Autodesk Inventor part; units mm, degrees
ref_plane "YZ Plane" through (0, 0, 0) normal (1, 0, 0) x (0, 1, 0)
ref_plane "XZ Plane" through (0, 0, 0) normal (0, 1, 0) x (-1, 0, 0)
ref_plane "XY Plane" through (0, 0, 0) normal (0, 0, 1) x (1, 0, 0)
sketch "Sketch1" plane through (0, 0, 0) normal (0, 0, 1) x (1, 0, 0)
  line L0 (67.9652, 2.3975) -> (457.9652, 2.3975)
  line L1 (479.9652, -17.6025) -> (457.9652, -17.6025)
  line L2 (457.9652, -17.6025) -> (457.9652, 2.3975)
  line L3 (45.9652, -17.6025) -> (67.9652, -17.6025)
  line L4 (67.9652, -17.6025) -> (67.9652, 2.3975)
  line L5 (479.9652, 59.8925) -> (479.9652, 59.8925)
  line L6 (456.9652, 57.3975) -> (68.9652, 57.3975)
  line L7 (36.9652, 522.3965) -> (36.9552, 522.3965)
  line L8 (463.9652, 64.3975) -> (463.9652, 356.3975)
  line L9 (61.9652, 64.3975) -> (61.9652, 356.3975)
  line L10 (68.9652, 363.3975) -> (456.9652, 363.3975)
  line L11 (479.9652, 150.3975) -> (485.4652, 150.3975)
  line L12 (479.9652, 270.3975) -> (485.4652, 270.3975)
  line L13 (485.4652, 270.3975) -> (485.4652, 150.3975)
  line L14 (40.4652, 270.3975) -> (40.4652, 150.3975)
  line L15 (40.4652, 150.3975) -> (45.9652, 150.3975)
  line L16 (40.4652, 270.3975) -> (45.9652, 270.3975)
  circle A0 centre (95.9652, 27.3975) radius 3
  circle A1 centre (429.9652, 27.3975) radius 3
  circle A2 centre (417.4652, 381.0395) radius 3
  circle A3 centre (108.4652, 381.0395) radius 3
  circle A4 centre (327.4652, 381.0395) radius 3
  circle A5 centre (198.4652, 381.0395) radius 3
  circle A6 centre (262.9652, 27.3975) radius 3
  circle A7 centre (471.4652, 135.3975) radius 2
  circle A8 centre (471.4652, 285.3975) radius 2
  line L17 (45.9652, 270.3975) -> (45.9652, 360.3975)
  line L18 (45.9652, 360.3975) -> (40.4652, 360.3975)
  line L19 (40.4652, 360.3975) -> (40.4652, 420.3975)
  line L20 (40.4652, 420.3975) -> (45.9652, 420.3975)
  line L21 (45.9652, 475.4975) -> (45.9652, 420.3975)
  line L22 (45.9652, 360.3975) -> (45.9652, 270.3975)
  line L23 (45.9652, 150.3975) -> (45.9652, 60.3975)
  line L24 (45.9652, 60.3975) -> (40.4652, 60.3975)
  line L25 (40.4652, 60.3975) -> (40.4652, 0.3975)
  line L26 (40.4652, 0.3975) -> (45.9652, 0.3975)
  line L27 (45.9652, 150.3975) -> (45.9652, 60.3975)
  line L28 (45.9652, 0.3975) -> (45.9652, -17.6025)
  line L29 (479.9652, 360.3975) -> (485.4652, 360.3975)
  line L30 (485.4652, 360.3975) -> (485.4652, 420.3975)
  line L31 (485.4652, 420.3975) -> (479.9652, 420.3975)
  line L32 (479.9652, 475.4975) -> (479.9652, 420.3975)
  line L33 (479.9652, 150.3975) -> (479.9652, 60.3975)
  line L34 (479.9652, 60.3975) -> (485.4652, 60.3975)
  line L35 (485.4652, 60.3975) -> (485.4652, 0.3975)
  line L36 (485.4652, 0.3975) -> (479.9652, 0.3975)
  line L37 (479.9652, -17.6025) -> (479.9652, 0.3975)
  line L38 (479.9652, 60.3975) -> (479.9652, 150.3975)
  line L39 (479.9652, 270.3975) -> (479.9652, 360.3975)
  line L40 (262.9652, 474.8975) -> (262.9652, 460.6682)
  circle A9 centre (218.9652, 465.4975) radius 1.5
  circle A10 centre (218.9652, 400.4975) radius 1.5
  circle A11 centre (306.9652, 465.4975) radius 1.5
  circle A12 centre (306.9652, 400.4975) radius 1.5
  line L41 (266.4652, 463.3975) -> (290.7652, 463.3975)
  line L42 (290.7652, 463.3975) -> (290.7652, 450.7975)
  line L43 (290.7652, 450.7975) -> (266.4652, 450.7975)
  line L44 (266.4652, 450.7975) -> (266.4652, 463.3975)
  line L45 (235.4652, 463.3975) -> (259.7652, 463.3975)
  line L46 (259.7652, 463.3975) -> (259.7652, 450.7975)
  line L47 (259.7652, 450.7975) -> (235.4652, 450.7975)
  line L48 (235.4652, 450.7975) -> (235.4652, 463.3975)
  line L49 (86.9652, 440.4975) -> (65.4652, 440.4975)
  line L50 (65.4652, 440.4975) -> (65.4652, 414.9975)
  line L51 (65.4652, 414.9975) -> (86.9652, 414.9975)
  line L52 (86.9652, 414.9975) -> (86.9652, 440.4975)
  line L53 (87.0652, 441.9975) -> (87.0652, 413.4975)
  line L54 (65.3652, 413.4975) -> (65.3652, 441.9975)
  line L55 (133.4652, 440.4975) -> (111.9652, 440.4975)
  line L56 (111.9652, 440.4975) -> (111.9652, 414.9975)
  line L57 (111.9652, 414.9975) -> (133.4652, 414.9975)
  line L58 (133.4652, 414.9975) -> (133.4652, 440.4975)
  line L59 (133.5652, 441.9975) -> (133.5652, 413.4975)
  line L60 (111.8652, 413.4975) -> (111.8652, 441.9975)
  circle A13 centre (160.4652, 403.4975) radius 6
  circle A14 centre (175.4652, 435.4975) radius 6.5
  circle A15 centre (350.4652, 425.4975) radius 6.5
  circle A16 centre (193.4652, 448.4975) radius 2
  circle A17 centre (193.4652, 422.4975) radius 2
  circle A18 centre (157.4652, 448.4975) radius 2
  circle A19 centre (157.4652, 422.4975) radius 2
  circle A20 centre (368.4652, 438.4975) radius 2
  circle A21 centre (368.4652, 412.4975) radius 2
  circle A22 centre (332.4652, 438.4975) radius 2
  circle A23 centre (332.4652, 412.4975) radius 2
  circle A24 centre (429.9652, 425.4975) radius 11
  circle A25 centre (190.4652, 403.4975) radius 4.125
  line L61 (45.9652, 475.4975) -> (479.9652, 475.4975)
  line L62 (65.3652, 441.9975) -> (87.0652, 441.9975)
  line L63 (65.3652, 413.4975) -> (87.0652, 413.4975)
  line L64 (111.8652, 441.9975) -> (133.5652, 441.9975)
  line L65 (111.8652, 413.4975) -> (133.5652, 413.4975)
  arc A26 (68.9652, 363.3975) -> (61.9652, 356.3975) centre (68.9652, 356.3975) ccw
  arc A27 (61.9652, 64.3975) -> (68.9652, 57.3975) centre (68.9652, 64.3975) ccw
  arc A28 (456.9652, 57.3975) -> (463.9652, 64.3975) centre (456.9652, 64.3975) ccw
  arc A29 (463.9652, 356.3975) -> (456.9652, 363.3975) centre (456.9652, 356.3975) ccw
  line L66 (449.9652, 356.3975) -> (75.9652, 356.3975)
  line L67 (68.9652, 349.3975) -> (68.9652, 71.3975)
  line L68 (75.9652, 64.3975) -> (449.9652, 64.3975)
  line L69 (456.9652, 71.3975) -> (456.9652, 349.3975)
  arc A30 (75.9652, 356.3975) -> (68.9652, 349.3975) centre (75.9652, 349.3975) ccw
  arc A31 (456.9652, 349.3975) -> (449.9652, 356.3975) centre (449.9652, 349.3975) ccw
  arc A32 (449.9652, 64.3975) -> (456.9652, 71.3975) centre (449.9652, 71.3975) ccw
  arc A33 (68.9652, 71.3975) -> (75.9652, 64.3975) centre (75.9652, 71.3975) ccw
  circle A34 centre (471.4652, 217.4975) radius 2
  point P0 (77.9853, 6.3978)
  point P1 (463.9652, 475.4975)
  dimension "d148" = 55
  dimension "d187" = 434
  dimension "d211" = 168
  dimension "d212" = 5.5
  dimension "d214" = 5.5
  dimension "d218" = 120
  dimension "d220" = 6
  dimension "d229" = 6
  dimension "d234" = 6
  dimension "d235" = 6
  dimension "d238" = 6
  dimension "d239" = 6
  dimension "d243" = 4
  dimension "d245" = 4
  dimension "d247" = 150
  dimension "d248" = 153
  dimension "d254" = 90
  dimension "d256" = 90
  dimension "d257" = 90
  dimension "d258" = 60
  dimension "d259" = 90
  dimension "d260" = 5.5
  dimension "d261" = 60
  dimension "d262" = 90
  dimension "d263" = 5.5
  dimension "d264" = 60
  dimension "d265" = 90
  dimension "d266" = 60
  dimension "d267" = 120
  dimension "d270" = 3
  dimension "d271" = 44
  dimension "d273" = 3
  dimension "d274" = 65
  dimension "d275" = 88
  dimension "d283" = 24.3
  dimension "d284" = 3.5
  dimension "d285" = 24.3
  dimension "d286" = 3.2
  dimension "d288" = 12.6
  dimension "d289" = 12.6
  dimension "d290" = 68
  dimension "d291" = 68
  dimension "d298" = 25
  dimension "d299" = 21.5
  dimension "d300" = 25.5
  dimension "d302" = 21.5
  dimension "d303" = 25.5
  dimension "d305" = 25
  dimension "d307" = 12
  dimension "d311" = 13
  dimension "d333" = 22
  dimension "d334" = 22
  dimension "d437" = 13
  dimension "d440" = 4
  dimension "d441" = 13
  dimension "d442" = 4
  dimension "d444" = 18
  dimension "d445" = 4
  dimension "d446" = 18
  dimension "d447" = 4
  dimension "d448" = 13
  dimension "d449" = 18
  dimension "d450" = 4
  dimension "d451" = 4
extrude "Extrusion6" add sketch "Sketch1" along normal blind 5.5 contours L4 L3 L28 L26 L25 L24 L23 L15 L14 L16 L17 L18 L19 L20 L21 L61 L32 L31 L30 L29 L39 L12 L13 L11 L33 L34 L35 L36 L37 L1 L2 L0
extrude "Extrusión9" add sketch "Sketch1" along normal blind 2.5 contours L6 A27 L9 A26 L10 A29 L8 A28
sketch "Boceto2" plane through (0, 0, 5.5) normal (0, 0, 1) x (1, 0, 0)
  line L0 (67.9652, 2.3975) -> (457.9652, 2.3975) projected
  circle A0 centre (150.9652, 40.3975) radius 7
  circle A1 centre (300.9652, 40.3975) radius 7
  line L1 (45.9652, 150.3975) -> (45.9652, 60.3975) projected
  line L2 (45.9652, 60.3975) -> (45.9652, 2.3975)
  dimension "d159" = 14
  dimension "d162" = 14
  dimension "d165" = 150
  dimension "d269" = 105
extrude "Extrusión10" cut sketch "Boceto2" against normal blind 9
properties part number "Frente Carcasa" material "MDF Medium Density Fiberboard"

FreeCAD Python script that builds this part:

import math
import FreeCAD as App
import Part
import Sketcher
from FreeCAD import Vector
Q = App.Units.Quantity


def add_polygon(sketch, points):
    """Adds a closed chain of lines whose ends are joined by coincident constraints."""
    first, n = sketch.GeometryCount, len(points)
    for a, b in zip(points, points[1:] + points[:1]):
        sketch.addGeometry(Part.LineSegment(App.Vector(*a, 0), App.Vector(*b, 0)), False)
    for i in range(n):
        sketch.addConstraint(Sketcher.Constraint("Coincident", first + i, 2, first + (i + 1) % n, 1))

doc = App.newDocument("Part")
body = doc.addObject("PartDesign::Body", "Body")

sketch1 = body.newObject("Sketcher::SketchObject", "Sketch")
sketch1.AttachmentSupport = (doc.getObject("XY_Plane"), [""])
sketch1.MapMode = "FlatFace"
add_polygon(sketch1, [(68, -17.6), (68, 2.4), (458, 2.4), (458, -17.6), (480, -17.6), (480, 0.4), (485.5, 0.4), (485.5, 60.4), (480, 60.4), (480, 150.4), (485.5, 150.4), (485.5, 270.4), (480, 270.4), (480, 360.4), (485.5, 360.4), (485.5, 420.4), (480, 420.4), (480, 475.5), (46, 475.5), (46, 420.4), (40.5, 420.4), (40.5, 360.4), (46, 360.4), (46, 270.4), (40.5, 270.4), (40.5, 150.4), (46, 150.4), (46, 60.4), (40.5, 60.4), (40.5, 0.4), (46, 0.4), (46, -17.6)])
sketch1.addGeometry(Part.Circle(Vector(96, 27.4, 0), Vector(0, 0, 1), 3), False)
sketch1.addGeometry(Part.Circle(Vector(263, 27.4, 0), Vector(0, 0, 1), 3), False)
sketch1.addGeometry(Part.Circle(Vector(430, 27.4, 0), Vector(0, 0, 1), 3), False)
sketch1.addGeometry(Part.ArcOfCircle(Part.Circle(Vector(457, 64.4, 0), Vector(0, 0, 1), 7), math.radians(-90), math.radians(0)), False)
sketch1.addGeometry(Part.LineSegment(Vector(457, 57.4, 0), Vector(69, 57.4, 0)), False)
sketch1.addGeometry(Part.ArcOfCircle(Part.Circle(Vector(69, 64.4, 0), Vector(0, 0, 1), 7), math.radians(180), math.radians(270)), False)
sketch1.addGeometry(Part.LineSegment(Vector(62, 64.4, 0), Vector(62, 356.4, 0)), False)
sketch1.addGeometry(Part.ArcOfCircle(Part.Circle(Vector(69, 356.4, 0), Vector(0, 0, 1), 7), math.radians(90), math.radians(180)), False)
sketch1.addGeometry(Part.LineSegment(Vector(69, 363.4, 0), Vector(457, 363.4, 0)), False)
sketch1.addGeometry(Part.ArcOfCircle(Part.Circle(Vector(457, 356.4, 0), Vector(0, 0, 1), 7), math.radians(0), math.radians(90)), False)
sketch1.addGeometry(Part.LineSegment(Vector(464, 356.4, 0), Vector(464, 64.4, 0)), False)
sketch1.addGeometry(Part.Circle(Vector(471.5, 135.4, 0), Vector(0, 0, 1), 2), False)
sketch1.addGeometry(Part.Circle(Vector(471.5, 217.5, 0), Vector(0, 0, 1), 2), False)
sketch1.addGeometry(Part.Circle(Vector(108.5, 381, 0), Vector(0, 0, 1), 3), False)
add_polygon(sketch1, [(65.4, 442), (87.1, 442), (87.1, 413.5), (65.4, 413.5)])
add_polygon(sketch1, [(111.9, 442), (133.6, 442), (133.6, 413.5), (111.9, 413.5)])
sketch1.addGeometry(Part.Circle(Vector(198.5, 381, 0), Vector(0, 0, 1), 3), False)
sketch1.addGeometry(Part.Circle(Vector(160.5, 403.5, 0), Vector(0, 0, 1), 6), False)
sketch1.addGeometry(Part.Circle(Vector(190.5, 403.5, 0), Vector(0, 0, 1), 4.1), False)
sketch1.addGeometry(Part.Circle(Vector(219, 400.5, 0), Vector(0, 0, 1), 1.5), False)
sketch1.addGeometry(Part.Circle(Vector(157.5, 422.5, 0), Vector(0, 0, 1), 2), False)
sketch1.addGeometry(Part.Circle(Vector(175.5, 435.5, 0), Vector(0, 0, 1), 6.5), False)
sketch1.addGeometry(Part.Circle(Vector(193.5, 422.5, 0), Vector(0, 0, 1), 2), False)
sketch1.addGeometry(Part.Circle(Vector(157.5, 448.5, 0), Vector(0, 0, 1), 2), False)
sketch1.addGeometry(Part.Circle(Vector(193.5, 448.5, 0), Vector(0, 0, 1), 2), False)
sketch1.addGeometry(Part.Circle(Vector(219, 465.5, 0), Vector(0, 0, 1), 1.5), False)
add_polygon(sketch1, [(235.5, 450.8), (235.5, 463.4), (259.8, 463.4), (259.8, 450.8)])
sketch1.addGeometry(Part.Circle(Vector(471.5, 285.4, 0), Vector(0, 0, 1), 2), False)
sketch1.addGeometry(Part.Circle(Vector(307, 400.5, 0), Vector(0, 0, 1), 1.5), False)
sketch1.addGeometry(Part.Circle(Vector(327.5, 381, 0), Vector(0, 0, 1), 3), False)
sketch1.addGeometry(Part.Circle(Vector(332.5, 412.5, 0), Vector(0, 0, 1), 2), False)
sketch1.addGeometry(Part.Circle(Vector(368.5, 412.5, 0), Vector(0, 0, 1), 2), False)
add_polygon(sketch1, [(266.5, 450.8), (266.5, 463.4), (290.8, 463.4), (290.8, 450.8)])
sketch1.addGeometry(Part.Circle(Vector(307, 465.5, 0), Vector(0, 0, 1), 1.5), False)
sketch1.addGeometry(Part.Circle(Vector(332.5, 438.5, 0), Vector(0, 0, 1), 2), False)
sketch1.addGeometry(Part.Circle(Vector(350.5, 425.5, 0), Vector(0, 0, 1), 6.5), False)
sketch1.addGeometry(Part.Circle(Vector(368.5, 438.5, 0), Vector(0, 0, 1), 2), False)
sketch1.addGeometry(Part.Circle(Vector(417.5, 381, 0), Vector(0, 0, 1), 3), False)
sketch1.addGeometry(Part.Circle(Vector(430, 425.5, 0), Vector(0, 0, 1), 11), False)
sketch1.addConstraint([
    Sketcher.Constraint("Tangent", 35, 1, 36, 1),
    Sketcher.Constraint("Tangent", 36, 2, 37, 2),
    Sketcher.Constraint("Tangent", 37, 1, 38, 1),
    Sketcher.Constraint("Tangent", 38, 2, 39, 2),
    Sketcher.Constraint("Tangent", 39, 1, 40, 1),
    Sketcher.Constraint("Tangent", 40, 2, 41, 2),
    Sketcher.Constraint("Tangent", 41, 1, 42, 1),
    Sketcher.Constraint("Tangent", 42, 2, 35, 2),
    Sketcher.Constraint("Vertical", 0),
    Sketcher.Constraint("Horizontal", 1),
    Sketcher.Constraint("Vertical", 2),
    Sketcher.Constraint("Horizontal", 3),
    Sketcher.Constraint("Vertical", 4),
    Sketcher.Constraint("Horizontal", 5),
    Sketcher.Constraint("Vertical", 6),
    Sketcher.Constraint("Horizontal", 7),
    Sketcher.Constraint("Vertical", 8),
    Sketcher.Constraint("Horizontal", 9),
    Sketcher.Constraint("Vertical", 10),
    Sketcher.Constraint("Horizontal", 11),
    Sketcher.Constraint("Vertical", 12),
    Sketcher.Constraint("Horizontal", 13),
    Sketcher.Constraint("Vertical", 14),
    Sketcher.Constraint("Horizontal", 15),
    Sketcher.Constraint("Vertical", 16),
    Sketcher.Constraint("Horizontal", 17),
    Sketcher.Constraint("Vertical", 18),
    Sketcher.Constraint("Horizontal", 19),
    Sketcher.Constraint("Vertical", 20),
    Sketcher.Constraint("Horizontal", 21),
    Sketcher.Constraint("Vertical", 22),
    Sketcher.Constraint("Horizontal", 23),
    Sketcher.Constraint("Vertical", 24),
    Sketcher.Constraint("Horizontal", 25),
    Sketcher.Constraint("Vertical", 26),
    Sketcher.Constraint("Horizontal", 27),
    Sketcher.Constraint("Vertical", 28),
    Sketcher.Constraint("Horizontal", 29),
    Sketcher.Constraint("Vertical", 30),
    Sketcher.Constraint("Horizontal", 31),
    Sketcher.Constraint("Horizontal", 36),
    Sketcher.Constraint("Vertical", 38),
    Sketcher.Constraint("Horizontal", 40),
    Sketcher.Constraint("Vertical", 42),
    Sketcher.Constraint("Horizontal", 46),
    Sketcher.Constraint("Vertical", 47),
    Sketcher.Constraint("Horizontal", 48),
    Sketcher.Constraint("Vertical", 49),
    Sketcher.Constraint("Horizontal", 50),
    Sketcher.Constraint("Vertical", 51),
    Sketcher.Constraint("Horizontal", 52),
    Sketcher.Constraint("Vertical", 53),
    Sketcher.Constraint("Vertical", 64),
    Sketcher.Constraint("Horizontal", 65),
    Sketcher.Constraint("Vertical", 66),
    Sketcher.Constraint("Horizontal", 67),
    Sketcher.Constraint("Vertical", 73),
    Sketcher.Constraint("Horizontal", 74),
    Sketcher.Constraint("Vertical", 75),
    Sketcher.Constraint("Horizontal", 76),
    Sketcher.Constraint("Equal", 32, 33),
    Sketcher.Constraint("Equal", 33, 34),
    Sketcher.Constraint("Equal", 35, 37),
    Sketcher.Constraint("Equal", 37, 39),
    Sketcher.Constraint("Equal", 39, 41),
    Sketcher.Constraint("Equal", 43, 44),
    Sketcher.Constraint("Equal", 34, 45),
    Sketcher.Constraint("Equal", 45, 54),
    Sketcher.Constraint("Equal", 44, 58),
    Sketcher.Constraint("Equal", 58, 60),
    Sketcher.Constraint("Equal", 60, 61),
    Sketcher.Constraint("Equal", 61, 62),
    Sketcher.Constraint("Equal", 57, 63),
    Sketcher.Constraint("Equal", 62, 68),
    Sketcher.Constraint("Equal", 63, 69),
    Sketcher.Constraint("Equal", 54, 70),
    Sketcher.Constraint("Equal", 68, 71),
    Sketcher.Constraint("Equal", 71, 72),
    Sketcher.Constraint("Equal", 69, 77),
    Sketcher.Constraint("Equal", 72, 78),
    Sketcher.Constraint("Equal", 59, 79),
    Sketcher.Constraint("Equal", 78, 80),
    Sketcher.Constraint("Equal", 70, 81),
    Sketcher.Constraint("Horizontal", 32, 3, 33, 3),
    Sketcher.Constraint("Horizontal", 33, 3, 34, 3),
    Sketcher.Constraint("Horizontal", 45, 3, 54, 3),
    Sketcher.Constraint("Horizontal", 55, 3, 56, 3),
    Sketcher.Constraint("Horizontal", 58, 3, 60, 3),
    Sketcher.Constraint("Horizontal", 61, 3, 62, 3),
    Sketcher.Constraint("Horizontal", 57, 3, 69, 3),
    Sketcher.Constraint("Horizontal", 54, 3, 70, 3),
    Sketcher.Constraint("Horizontal", 71, 3, 72, 3),
    Sketcher.Constraint("Horizontal", 63, 3, 77, 3),
    Sketcher.Constraint("Horizontal", 78, 3, 80, 3),
    Sketcher.Constraint("Horizontal", 70, 3, 81, 3),
    Sketcher.Constraint("Horizontal", 79, 3, 82, 3),
    Sketcher.Constraint("Horizontal", 15, 2, 18, 2),
    Sketcher.Constraint("Horizontal", 13, 2, 20, 2),
    Sketcher.Constraint("Horizontal", 11, 2, 22, 2),
    Sketcher.Constraint("Horizontal", 9, 2, 24, 2),
    Sketcher.Constraint("Horizontal", 7, 2, 26, 2),
    Sketcher.Constraint("Horizontal", 5, 2, 28, 2),
    Sketcher.Constraint("Horizontal", 3, 2, 30, 2),
    Sketcher.Constraint("Horizontal", 49, 2, 50, 2),
    Sketcher.Constraint("Horizontal", 48, 2, 51, 2),
    Sketcher.Constraint("Horizontal", 65, 2, 73, 2),
    Sketcher.Constraint("Horizontal", 67, 2, 75, 2),
    Sketcher.Constraint("Vertical", 43, 3, 44, 3),
    Sketcher.Constraint("Vertical", 58, 3, 61, 3),
    Sketcher.Constraint("Vertical", 60, 3, 62, 3),
    Sketcher.Constraint("Vertical", 57, 3, 63, 3),
    Sketcher.Constraint("Vertical", 44, 3, 68, 3),
    Sketcher.Constraint("Vertical", 69, 3, 77, 3),
    Sketcher.Constraint("Vertical", 71, 3, 78, 3),
    Sketcher.Constraint("Vertical", 72, 3, 80, 3),
    Sketcher.Constraint("Vertical", 34, 3, 82, 3),
    Sketcher.Constraint("Vertical", 4, 2, 7, 2),
    Sketcher.Constraint("Vertical", 6, 2, 9, 2),
    Sketcher.Constraint("Vertical", 8, 2, 11, 2),
    Sketcher.Constraint("Vertical", 10, 2, 13, 2),
    Sketcher.Constraint("Vertical", 12, 2, 15, 2),
    Sketcher.Constraint("Vertical", 18, 2, 21, 2),
    Sketcher.Constraint("Vertical", 20, 2, 23, 2),
    Sketcher.Constraint("Vertical", 22, 2, 25, 2),
    Sketcher.Constraint("Vertical", 24, 2, 27, 2),
    Sketcher.Constraint("Vertical", 26, 2, 29, 2),
    Sketcher.Constraint("Equal", 15, 19),
    Sketcher.Constraint("Equal", 3, 31),
    Sketcher.Constraint("Equal", 48, 50),
    Sketcher.Constraint("Equal", 67, 74),
    Sketcher.Constraint("Equal", 8, 12),
    Sketcher.Constraint("Equal", 6, 14),
    Sketcher.Constraint("Diameter", 32, Q("6 mm")),
    Sketcher.Constraint("Diameter", 43, Q("4 mm")),
    Sketcher.Constraint("Diameter", 55, Q("12 mm")),
    Sketcher.Constraint("Diameter", 57, Q("3 mm")),
    Sketcher.Constraint("Diameter", 59, Q("13 mm")),
    Sketcher.Constraint("Diameter", 82, Q("22 mm")),
    Sketcher.Constraint("DistanceX", 3, 1, 3, 2, Q("22 mm")),
    Sketcher.Constraint("DistanceX", 17, 2, 17, 1, Q("434 mm")),
    Sketcher.Constraint("DistanceY", 4, 1, 4, 2, Q("18 mm")),
    Sketcher.Constraint("DistanceY", 6, 1, 6, 2, Q("60 mm")),
    Sketcher.Constraint("DistanceY", 8, 1, 8, 2, Q("90 mm")),
    Sketcher.Constraint("DistanceY", 10, 1, 10, 2, Q("120 mm")),
    Sketcher.Constraint("DistanceX", 5, 1, 5, 2, Q("5.5 mm")),
    Sketcher.Constraint("DistanceX", 65, 1, 65, 2, Q("24.3 mm")),
    Sketcher.Constraint("DistanceY", 64, 1, 64, 2, Q("12.6 mm")),
    Sketcher.Constraint("Radius", 35, Q("7 mm")),
    Sketcher.Constraint("Diameter", 56, Q("8.25 mm")),
    Sketcher.Constraint("DistanceX", 36, 2, 36, 1, Q("388 mm")),
    Sketcher.Constraint("DistanceY", 0, 1, 0, 2, Q("20 mm")),
    Sketcher.Constraint("DistanceY", 38, 1, 38, 2, Q("292 mm")),
    Sketcher.Constraint("DistanceX", 46, 1, 46, 2, Q("21.7 mm")),
    Sketcher.Constraint("DistanceY", 16, 1, 16, 2, Q("55.1 mm")),
    Sketcher.Constraint("DistanceY", 47, 2, 47, 1, Q("28.5 mm")),
    Sketcher.Constraint("DistanceX", -1, 1, 32, 3, Q("95.9652 mm")),
    Sketcher.Constraint("DistanceY", -1, 1, 32, 3, Q("27.3975 mm")),
    Sketcher.Constraint("DistanceX", -1, 1, 33, 3, Q("262.9652 mm")),
    Sketcher.Constraint("DistanceX", -1, 1, 34, 3, Q("429.9652 mm")),
    Sketcher.Constraint("DistanceX", -1, 1, 35, 3, Q("456.9652 mm")),
    Sketcher.Constraint("DistanceY", -1, 1, 35, 3, Q("64.3975 mm")),
    Sketcher.Constraint("DistanceX", -1, 1, 43, 3, Q("471.4652 mm")),
    Sketcher.Constraint("DistanceY", -1, 1, 43, 3, Q("135.3975 mm")),
    Sketcher.Constraint("DistanceY", -1, 1, 44, 3, Q("217.4975 mm")),
    Sketcher.Constraint("DistanceX", -1, 1, 45, 3, Q("108.4652 mm")),
    Sketcher.Constraint("DistanceY", -1, 1, 45, 3, Q("381.0395 mm")),
    Sketcher.Constraint("DistanceX", -1, 1, 54, 3, Q("198.4652 mm")),
    Sketcher.Constraint("DistanceX", -1, 1, 55, 3, Q("160.4652 mm")),
    Sketcher.Constraint("DistanceY", -1, 1, 55, 3, Q("403.4975 mm")),
    Sketcher.Constraint("DistanceX", -1, 1, 56, 3, Q("190.4652 mm")),
    Sketcher.Constraint("DistanceX", -1, 1, 57, 3, Q("218.9652 mm")),
    Sketcher.Constraint("DistanceY", -1, 1, 57, 3, Q("400.4975 mm")),
    Sketcher.Constraint("DistanceX", -1, 1, 58, 3, Q("157.4652 mm")),
    Sketcher.Constraint("DistanceY", -1, 1, 58, 3, Q("422.4975 mm")),
    Sketcher.Constraint("DistanceX", -1, 1, 59, 3, Q("175.4652 mm")),
    Sketcher.Constraint("DistanceY", -1, 1, 59, 3, Q("435.4975 mm")),
    Sketcher.Constraint("DistanceX", -1, 1, 60, 3, Q("193.4652 mm")),
    Sketcher.Constraint("DistanceY", -1, 1, 61, 3, Q("448.4975 mm")),
    Sketcher.Constraint("DistanceY", -1, 1, 63, 3, Q("465.4975 mm")),
    Sketcher.Constraint("DistanceY", -1, 1, 68, 3, Q("285.3975 mm")),
    Sketcher.Constraint("DistanceX", -1, 1, 69, 3, Q("306.9652 mm")),
    Sketcher.Constraint("DistanceX", -1, 1, 70, 3, Q("327.4652 mm")),
    Sketcher.Constraint("DistanceX", -1, 1, 71, 3, Q("332.4652 mm")),
    Sketcher.Constraint("DistanceY", -1, 1, 71, 3, Q("412.4975 mm")),
    Sketcher.Constraint("DistanceX", -1, 1, 72, 3, Q("368.4652 mm")),
    Sketcher.Constraint("DistanceY", -1, 1, 78, 3, Q("438.4975 mm")),
    Sketcher.Constraint("DistanceX", -1, 1, 79, 3, Q("350.4652 mm")),
    Sketcher.Constraint("DistanceY", -1, 1, 79, 3, Q("425.4975 mm")),
    Sketcher.Constraint("DistanceX", -1, 1, 81, 3, Q("417.4652 mm")),
    Sketcher.Constraint("DistanceX", -1, 1, 0, 2, Q("67.9652 mm")),
    Sketcher.Constraint("DistanceY", -1, 1, 0, 2, Q("2.3975 mm")),
    Sketcher.Constraint("DistanceX", -1, 1, 46, 2, Q("87.0652 mm")),
    Sketcher.Constraint("DistanceY", -1, 1, 46, 2, Q("441.9975 mm")),
    Sketcher.Constraint("DistanceX", -1, 1, 50, 2, Q("133.5652 mm")),
    Sketcher.Constraint("DistanceX", -1, 1, 64, 2, Q("235.4652 mm")),
    Sketcher.Constraint("DistanceY", -1, 1, 64, 2, Q("463.3975 mm")),
    Sketcher.Constraint("DistanceX", -1, 1, 73, 2, Q("266.4652 mm")),
])
pad1 = body.newObject("PartDesign::Pad", "Pad")
pad1.Profile = sketch1
pad1.Length = 5.5

sketch2 = body.newObject("Sketcher::SketchObject", "Sketch001")
sketch2.AttachmentSupport = (doc.getObject("XY_Plane"), [""])
sketch2.MapMode = "FlatFace"
sketch2.addGeometry([
    Part.LineSegment(Vector(69, 57, 0), Vector(457, 57, 0)),
    Part.ArcOfCircle(Part.Circle(Vector(457, 64, 0), Vector(0, 0, 1), 7), math.radians(-90), math.radians(0)),
    Part.LineSegment(Vector(464, 64, 0), Vector(464, 356, 0)),
    Part.ArcOfCircle(Part.Circle(Vector(457, 356, 0), Vector(0, 0, 1), 7), math.radians(0), math.radians(90)),
    Part.LineSegment(Vector(457, 363, 0), Vector(69, 363, 0)),
    Part.ArcOfCircle(Part.Circle(Vector(69, 356, 0), Vector(0, 0, 1), 7), math.radians(90), math.radians(180)),
    Part.LineSegment(Vector(62, 356, 0), Vector(62, 64, 0)),
    Part.ArcOfCircle(Part.Circle(Vector(69, 64, 0), Vector(0, 0, 1), 7), math.radians(180), math.radians(270)),
    Part.LineSegment(Vector(76, 356, 0), Vector(450, 356, 0)),
    Part.ArcOfCircle(Part.Circle(Vector(450, 349, 0), Vector(0, 0, 1), 7), math.radians(0), math.radians(90)),
    Part.LineSegment(Vector(457, 349, 0), Vector(457, 71, 0)),
    Part.ArcOfCircle(Part.Circle(Vector(450, 71, 0), Vector(0, 0, 1), 7), math.radians(-90), math.radians(0)),
    Part.LineSegment(Vector(450, 64, 0), Vector(76, 64, 0)),
    Part.ArcOfCircle(Part.Circle(Vector(76, 71, 0), Vector(0, 0, 1), 7), math.radians(180), math.radians(270)),
    Part.LineSegment(Vector(69, 71, 0), Vector(69, 349, 0)),
    Part.ArcOfCircle(Part.Circle(Vector(76, 349, 0), Vector(0, 0, 1), 7), math.radians(90), math.radians(180)),
], False)
sketch2.addConstraint([
    Sketcher.Constraint("Tangent", 0, 2, 1, 1),
    Sketcher.Constraint("Tangent", 1, 2, 2, 1),
    Sketcher.Constraint("Tangent", 2, 2, 3, 1),
    Sketcher.Constraint("Tangent", 3, 2, 4, 1),
    Sketcher.Constraint("Tangent", 4, 2, 5, 1),
    Sketcher.Constraint("Tangent", 5, 2, 6, 1),
    Sketcher.Constraint("Tangent", 6, 2, 7, 1),
    Sketcher.Constraint("Tangent", 7, 2, 0, 1),
    Sketcher.Constraint("Tangent", 8, 2, 9, 2),
    Sketcher.Constraint("Tangent", 9, 1, 10, 1),
    Sketcher.Constraint("Tangent", 10, 2, 11, 2),
    Sketcher.Constraint("Tangent", 11, 1, 12, 1),
    Sketcher.Constraint("Tangent", 12, 2, 13, 2),
    Sketcher.Constraint("Tangent", 13, 1, 14, 1),
    Sketcher.Constraint("Tangent", 14, 2, 15, 2),
    Sketcher.Constraint("Tangent", 15, 1, 8, 1),
    Sketcher.Constraint("Horizontal", 0),
    Sketcher.Constraint("Vertical", 2),
    Sketcher.Constraint("Horizontal", 4),
    Sketcher.Constraint("Vertical", 6),
    Sketcher.Constraint("Horizontal", 8),
    Sketcher.Constraint("Vertical", 10),
    Sketcher.Constraint("Horizontal", 12),
    Sketcher.Constraint("Vertical", 14),
    Sketcher.Constraint("Equal", 1, 3),
    Sketcher.Constraint("Equal", 3, 5),
    Sketcher.Constraint("Equal", 5, 7),
    Sketcher.Constraint("Equal", 7, 9),
    Sketcher.Constraint("Equal", 9, 11),
    Sketcher.Constraint("Equal", 11, 13),
    Sketcher.Constraint("Equal", 13, 15),
    Sketcher.Constraint("Horizontal", 5, 2, 8, 2),
    Sketcher.Constraint("Horizontal", 6, 2, 11, 1),
    Sketcher.Constraint("Vertical", 3, 2, 9, 1),
    Sketcher.Constraint("Vertical", 7, 2, 13, 1),
    Sketcher.Constraint("Radius", 1, Q("7 mm")),
    Sketcher.Constraint("DistanceX", 0, 1, 0, 2, Q("388 mm")),
    Sketcher.Constraint("DistanceY", 2, 1, 2, 2, Q("292 mm")),
    Sketcher.Constraint("DistanceX", -1, 1, 1, 3, Q("456.9652 mm")),
    Sketcher.Constraint("DistanceY", -1, 1, 1, 3, Q("64.3975 mm")),
])
pad2 = body.newObject("PartDesign::Pad", "Pad001")
pad2.Profile = sketch2
pad2.Length = 2.5

sketch3 = body.newObject("Sketcher::SketchObject", "Sketch002")
sketch3.AttachmentSupport = (doc.getObject("XY_Plane"), [""])
sketch3.MapMode = "FlatFace"
sketch3.AttachmentOffset = App.Placement(Vector(0, 0, 5.5), App.Rotation())
sketch3.addGeometry([
    Part.Circle(Vector(151, 40, 0), Vector(0, 0, 1), 7),
    Part.Circle(Vector(301, 40, 0), Vector(0, 0, 1), 7),
], False)
sketch3.addConstraint([
    Sketcher.Constraint("Equal", 0, 1),
    Sketcher.Constraint("Horizontal", 0, 3, 1, 3),
    Sketcher.Constraint("Diameter", 0, Q("14 mm")),
    Sketcher.Constraint("DistanceX", 0, 3, 1, 3, Q("150 mm")),
    Sketcher.Constraint("DistanceX", -1, 1, 0, 3, Q("150.9652 mm")),
    Sketcher.Constraint("DistanceY", -1, 1, 0, 3, Q("40.3975 mm")),
])
pocket1 = body.newObject("PartDesign::Pocket", "Pocket")
pocket1.Profile = sketch3
pocket1.Length = 9

doc.recompute()
